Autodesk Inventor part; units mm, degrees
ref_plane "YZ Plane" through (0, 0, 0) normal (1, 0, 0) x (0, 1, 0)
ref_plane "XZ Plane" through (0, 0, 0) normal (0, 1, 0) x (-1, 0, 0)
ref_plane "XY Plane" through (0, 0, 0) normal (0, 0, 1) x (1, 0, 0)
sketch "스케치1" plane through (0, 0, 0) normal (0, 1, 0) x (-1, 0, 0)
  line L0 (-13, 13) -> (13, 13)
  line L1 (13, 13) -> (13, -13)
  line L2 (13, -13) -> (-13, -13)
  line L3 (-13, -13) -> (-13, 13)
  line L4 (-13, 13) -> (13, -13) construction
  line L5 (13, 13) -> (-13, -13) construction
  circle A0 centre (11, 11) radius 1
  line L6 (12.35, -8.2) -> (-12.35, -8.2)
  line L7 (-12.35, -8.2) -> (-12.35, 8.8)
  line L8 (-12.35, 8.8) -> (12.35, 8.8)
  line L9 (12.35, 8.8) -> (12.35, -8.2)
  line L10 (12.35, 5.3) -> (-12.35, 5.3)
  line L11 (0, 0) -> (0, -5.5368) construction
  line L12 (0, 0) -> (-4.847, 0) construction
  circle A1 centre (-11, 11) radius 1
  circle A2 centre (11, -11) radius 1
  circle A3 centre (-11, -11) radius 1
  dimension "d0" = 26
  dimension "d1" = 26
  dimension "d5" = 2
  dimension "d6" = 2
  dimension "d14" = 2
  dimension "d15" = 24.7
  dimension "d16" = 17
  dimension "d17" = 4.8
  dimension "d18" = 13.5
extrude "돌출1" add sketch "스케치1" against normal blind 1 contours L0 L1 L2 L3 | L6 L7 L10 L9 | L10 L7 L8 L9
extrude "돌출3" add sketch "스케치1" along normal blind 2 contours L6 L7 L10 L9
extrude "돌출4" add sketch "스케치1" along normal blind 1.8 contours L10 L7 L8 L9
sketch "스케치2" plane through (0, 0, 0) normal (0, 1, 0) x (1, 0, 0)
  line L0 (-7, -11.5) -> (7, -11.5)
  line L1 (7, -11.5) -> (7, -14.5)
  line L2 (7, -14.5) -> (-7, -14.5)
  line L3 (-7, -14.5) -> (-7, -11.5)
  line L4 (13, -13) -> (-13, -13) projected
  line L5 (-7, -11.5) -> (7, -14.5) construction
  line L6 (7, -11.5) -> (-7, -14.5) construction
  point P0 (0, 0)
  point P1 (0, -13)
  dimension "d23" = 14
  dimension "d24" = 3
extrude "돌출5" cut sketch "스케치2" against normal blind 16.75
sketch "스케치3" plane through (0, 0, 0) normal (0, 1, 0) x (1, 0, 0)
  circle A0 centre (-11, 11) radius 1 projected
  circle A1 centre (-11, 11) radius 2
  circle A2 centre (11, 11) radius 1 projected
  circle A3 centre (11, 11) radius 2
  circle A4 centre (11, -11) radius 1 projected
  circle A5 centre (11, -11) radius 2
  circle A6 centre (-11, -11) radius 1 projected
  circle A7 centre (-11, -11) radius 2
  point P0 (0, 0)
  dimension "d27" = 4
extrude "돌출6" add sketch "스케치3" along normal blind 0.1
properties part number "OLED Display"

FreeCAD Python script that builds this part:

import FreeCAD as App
import Part
import Sketcher
from FreeCAD import Vector


def add_polygon(sketch, points):
    """Adds a closed chain of lines whose ends are joined by coincident constraints."""
    first, n = sketch.GeometryCount, len(points)
    for a, b in zip(points, points[1:] + points[:1]):
        sketch.addGeometry(Part.LineSegment(App.Vector(*a, 0), App.Vector(*b, 0)), False)
    for i in range(n):
        sketch.addConstraint(Sketcher.Constraint("Coincident", first + i, 2, first + (i + 1) % n, 1))

doc = App.newDocument("Part")
body = doc.addObject("PartDesign::Body", "Body")

# Sketch on XZ plane
sketch1 = body.newObject("Sketcher::SketchObject", "Sketch")
sketch1.AttachmentSupport = (doc.getObject("XZ_Plane"), [""])
sketch1.MapMode = "FlatFace"
add_polygon(sketch1, [(-13, 13), (13, 13), (13, -13), (-13, -13)])  # lines 0-3
sketch1.addGeometry(Part.Circle(Vector(11, -11, 0), Vector(0, 0, 1), 1), False)  # 4
sketch1.addGeometry(Part.Circle(Vector(-11, -11, 0), Vector(0, 0, 1), 1), False)  # 5
sketch1.addGeometry(Part.Circle(Vector(11, 11, 0), Vector(0, 0, 1), 1), False)  # 6
sketch1.addGeometry(Part.Circle(Vector(-11, 11, 0), Vector(0, 0, 1), 1), False)  # 7
sketch1.addConstraint([
    Sketcher.Constraint("Horizontal", 0),
    Sketcher.Constraint("Vertical", 1),
    Sketcher.Constraint("Horizontal", 2),
    Sketcher.Constraint("Vertical", 3),
    Sketcher.Constraint("Equal", 4, 5),
    Sketcher.Constraint("Equal", 5, 6),
    Sketcher.Constraint("Equal", 6, 7),
    Sketcher.Constraint("Symmetric", 5, 3, 6, 3, -1, 1),
    Sketcher.Constraint("Symmetric", 4, 3, 7, 3, -1, 1),
    Sketcher.Constraint("Symmetric", 0, 2, 2, 2, -1, 1),
    Sketcher.Constraint("Symmetric", 4, 3, 5, 3, -2),
    Sketcher.Constraint("Equal", 2, 1),
    Sketcher.Constraint("Diameter", 4, 2.0),
    Sketcher.Constraint("DistanceX", 0, 1, 0, 2, 26.0),
    Sketcher.Constraint("DistanceX", 6, 3, 0, 2, 2.0),
    Sketcher.Constraint("DistanceY", 6, 3, 0, 2, 2.0),
])
pad1 = body.newObject("PartDesign::Pad", "Pad")
pad1.Profile = sketch1
pad1.Length = 1

# Sketch on XZ plane
sketch2 = body.newObject("Sketcher::SketchObject", "Sketch001")
sketch2.AttachmentSupport = (doc.getObject("XZ_Plane"), [""])
sketch2.MapMode = "FlatFace"
add_polygon(sketch2, [(12, -8), (-12, -8), (-12, 5), (12, 5)])  # lines 0-3
sketch2.addConstraint([
    Sketcher.Constraint("Horizontal", 0),
    Sketcher.Constraint("Vertical", 1),
    Sketcher.Constraint("Horizontal", 2),
    Sketcher.Constraint("Vertical", 3),
    Sketcher.Constraint("DistanceX", 0, 2, 0, 1, 24.7),
    Sketcher.Constraint("DistanceY", 1, 1, 1, 2, 13.5),
    Sketcher.Constraint("DistanceY", 0, 2, -1, 1, 8.2),
    Sketcher.Constraint("DistanceX", 0, 2, -1, 1, 12.35),
])
pad2 = body.newObject("PartDesign::Pad", "Pad001")
pad2.Profile = sketch2
pad2.Length = 2
pad2.Reversed = True

# Sketch on XZ plane
sketch3 = body.newObject("Sketcher::SketchObject", "Sketch002")
sketch3.AttachmentSupport = (doc.getObject("XZ_Plane"), [""])
sketch3.MapMode = "FlatFace"
add_polygon(sketch3, [(12.3, 5.3), (-12.3, 5.3), (-12.3, 8.8), (12.3, 8.8)])  # lines 0-3
sketch3.addConstraint([
    Sketcher.Constraint("Horizontal", 0),
    Sketcher.Constraint("Vertical", 1),
    Sketcher.Constraint("Horizontal", 2),
    Sketcher.Constraint("Vertical", 3),
    Sketcher.Constraint("DistanceX", 0, 2, 0, 1, 24.7),
    Sketcher.Constraint("DistanceY", 1, 1, 1, 2, 3.5),
    Sketcher.Constraint("DistanceY", -1, 1, 0, 2, 5.3),
    Sketcher.Constraint("DistanceX", 0, 2, -1, 1, 12.35),
])
pad3 = body.newObject("PartDesign::Pad", "Pad002")
pad3.Profile = sketch3
pad3.Length = 1.8
pad3.Reversed = True

# Sketch on XZ plane
sketch4 = body.newObject("Sketcher::SketchObject", "Sketch003")
sketch4.AttachmentSupport = (doc.getObject("XZ_Plane"), [""])
sketch4.MapMode = "FlatFace"
add_polygon(sketch4, [(7, 11.5), (-7, 11.5), (-7, 14.5), (7, 14.5)])  # lines 0-3
sketch4.addConstraint([
    Sketcher.Constraint("Horizontal", 0),
    Sketcher.Constraint("Vertical", 1),
    Sketcher.Constraint("Horizontal", 2),
    Sketcher.Constraint("Vertical", 3),
    Sketcher.Constraint("DistanceX", 0, 2, 0, 1, 14.0),
    Sketcher.Constraint("DistanceY", 1, 1, 1, 2, 3.0),
    Sketcher.Constraint("DistanceX", 0, 2, -1, 1, 7.0),
    Sketcher.Constraint("DistanceY", -1, 1, 0, 2, 11.5),
])
pocket1 = body.newObject("PartDesign::Pocket", "Pocket")
pocket1.Profile = sketch4
pocket1.Length = 16.75
pocket1.Reversed = True

# Sketch on XZ plane
sketch5 = body.newObject("Sketcher::SketchObject", "Sketch004")
sketch5.AttachmentSupport = (doc.getObject("XZ_Plane"), [""])
sketch5.MapMode = "FlatFace"
sketch5.addGeometry([
    Part.Circle(Vector(-11, -11, 0), Vector(0, 0, 1), 2),  # 0
    Part.Circle(Vector(-11, -11, 0), Vector(0, 0, 1), 1),  # 1
    Part.Circle(Vector(11, -11, 0), Vector(0, 0, 1), 2),  # 2
    Part.Circle(Vector(11, -11, 0), Vector(0, 0, 1), 1),  # 3
    Part.Circle(Vector(11, 11, 0), Vector(0, 0, 1), 2),  # 4
    Part.Circle(Vector(11, 11, 0), Vector(0, 0, 1), 1),  # 5
    Part.Circle(Vector(-11, 11, 0), Vector(0, 0, 1), 2),  # 6
    Part.Circle(Vector(-11, 11, 0), Vector(0, 0, 1), 1),  # 7
], False)
sketch5.addConstraint([
    Sketcher.Constraint("Coincident", 1, 3, 0, 3),
    Sketcher.Constraint("Coincident", 3, 3, 2, 3),
    Sketcher.Constraint("Coincident", 5, 3, 4, 3),
    Sketcher.Constraint("Coincident", 7, 3, 6, 3),
    Sketcher.Constraint("Equal", 0, 2),
    Sketcher.Constraint("Equal", 1, 3),
    Sketcher.Constraint("Equal", 2, 4),
    Sketcher.Constraint("Equal", 3, 5),
    Sketcher.Constraint("Equal", 4, 6),
    Sketcher.Constraint("Equal", 5, 7),
    Sketcher.Constraint("Symmetric", 0, 3, 4, 3, -1, 1),
    Sketcher.Constraint("Symmetric", 2, 3, 6, 3, -1, 1),
    Sketcher.Constraint("Symmetric", 0, 3, 2, 3, -2),
    Sketcher.Constraint("Diameter", 0, 4.0),
    Sketcher.Constraint("Diameter", 1, 2.0),
    Sketcher.Constraint("DistanceX", 0, 3, -1, 1, 11.0),
    Sketcher.Constraint("DistanceY", 0, 3, -1, 1, 11.0),
])
pad4 = body.newObject("PartDesign::Pad", "Pad003")
pad4.Profile = sketch5
pad4.Length = 0.1
pad4.Reversed = True

doc.recompute()
